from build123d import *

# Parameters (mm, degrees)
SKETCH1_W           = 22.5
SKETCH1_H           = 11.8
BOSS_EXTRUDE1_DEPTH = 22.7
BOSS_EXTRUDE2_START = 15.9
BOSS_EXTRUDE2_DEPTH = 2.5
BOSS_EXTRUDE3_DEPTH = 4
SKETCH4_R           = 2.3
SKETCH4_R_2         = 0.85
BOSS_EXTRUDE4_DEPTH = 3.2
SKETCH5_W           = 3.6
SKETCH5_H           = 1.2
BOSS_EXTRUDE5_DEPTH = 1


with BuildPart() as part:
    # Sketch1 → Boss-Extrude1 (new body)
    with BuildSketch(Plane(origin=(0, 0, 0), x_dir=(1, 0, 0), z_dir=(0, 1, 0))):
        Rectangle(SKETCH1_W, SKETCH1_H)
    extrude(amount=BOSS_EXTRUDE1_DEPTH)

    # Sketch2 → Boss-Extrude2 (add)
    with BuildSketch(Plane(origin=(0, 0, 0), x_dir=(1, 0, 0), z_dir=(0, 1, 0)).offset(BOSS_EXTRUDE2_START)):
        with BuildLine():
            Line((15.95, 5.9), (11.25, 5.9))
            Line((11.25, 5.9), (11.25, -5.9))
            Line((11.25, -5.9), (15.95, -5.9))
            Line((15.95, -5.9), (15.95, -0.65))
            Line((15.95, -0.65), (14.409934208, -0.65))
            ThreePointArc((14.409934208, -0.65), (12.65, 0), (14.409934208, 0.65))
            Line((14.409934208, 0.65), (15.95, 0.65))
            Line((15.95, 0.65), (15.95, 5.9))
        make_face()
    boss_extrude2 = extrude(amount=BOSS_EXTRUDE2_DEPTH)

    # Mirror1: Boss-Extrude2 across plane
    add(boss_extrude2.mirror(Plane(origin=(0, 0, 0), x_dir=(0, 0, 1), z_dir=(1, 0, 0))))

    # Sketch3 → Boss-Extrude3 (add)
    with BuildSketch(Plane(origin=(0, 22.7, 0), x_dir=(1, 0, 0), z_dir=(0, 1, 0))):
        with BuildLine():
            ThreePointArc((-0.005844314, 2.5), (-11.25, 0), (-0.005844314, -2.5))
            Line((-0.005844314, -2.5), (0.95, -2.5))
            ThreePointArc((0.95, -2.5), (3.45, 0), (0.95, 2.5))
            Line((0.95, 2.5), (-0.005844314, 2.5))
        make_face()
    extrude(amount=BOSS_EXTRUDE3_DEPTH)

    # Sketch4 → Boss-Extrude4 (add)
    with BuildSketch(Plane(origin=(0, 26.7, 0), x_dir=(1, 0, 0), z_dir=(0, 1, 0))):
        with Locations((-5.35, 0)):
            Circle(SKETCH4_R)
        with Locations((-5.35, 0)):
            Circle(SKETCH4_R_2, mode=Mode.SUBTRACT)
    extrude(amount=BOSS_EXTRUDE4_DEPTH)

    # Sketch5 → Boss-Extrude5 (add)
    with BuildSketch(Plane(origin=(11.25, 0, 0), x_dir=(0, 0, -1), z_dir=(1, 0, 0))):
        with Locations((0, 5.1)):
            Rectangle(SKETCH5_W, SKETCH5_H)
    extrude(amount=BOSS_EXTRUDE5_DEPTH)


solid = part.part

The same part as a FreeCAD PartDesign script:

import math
import FreeCAD as App
import Part
import Sketcher
from FreeCAD import Vector

doc = App.newDocument("Part")
body = doc.addObject("PartDesign::Body", "Body")

# Sketch on XZ plane
sketch1 = body.newObject("Sketcher::SketchObject", "Sketch")
sketch1.AttachmentSupport = (doc.getObject("XZ_Plane"), [""])
sketch1.MapMode = "FlatFace"
sketch1.addGeometry(Part.LineSegment(Vector(-11.25, -5.9, 0), Vector(-11.25, 5.9, 0)), False)
sketch1.addGeometry(Part.LineSegment(Vector(-11.25, 5.9, 0), Vector(11.25, 5.9, 0)), False)
sketch1.addGeometry(Part.LineSegment(Vector(11.25, 5.9, 0), Vector(11.25, -5.9, 0)), False)
sketch1.addGeometry(Part.LineSegment(Vector(11.25, -5.9, 0), Vector(-11.25, -5.9, 0)), False)
sketch1.addConstraint(Sketcher.Constraint("Coincident", 0, 2, 1, 1))
sketch1.addConstraint(Sketcher.Constraint("Coincident", 1, 2, 2, 1))
sketch1.addConstraint(Sketcher.Constraint("Coincident", 2, 2, 3, 1))
sketch1.addConstraint(Sketcher.Constraint("Coincident", 3, 2, 0, 1))
sketch1.addConstraint(Sketcher.Constraint("Vertical", 0))
sketch1.addConstraint(Sketcher.Constraint("Horizontal", 1))
sketch1.addConstraint(Sketcher.Constraint("Vertical", 2))
sketch1.addConstraint(Sketcher.Constraint("Horizontal", 3))
sketch1.addConstraint(Sketcher.Constraint("Symmetric", 0, 2, 2, 2, -1, 1))
sketch1.addConstraint(Sketcher.Constraint("DistanceX", 1, 1, 1, 2, 22.5))
sketch1.addConstraint(Sketcher.Constraint("DistanceY", 0, 1, 0, 2, 11.8))
pad1 = body.newObject("PartDesign::Pad", "Pad")
pad1.Profile = sketch1
pad1.Length = 22.7
pad1.Reversed = True

# Sketch on XZ plane
sketch2 = body.newObject("Sketcher::SketchObject", "Sketch001")
sketch2.AttachmentSupport = (doc.getObject("XZ_Plane"), [""])
sketch2.MapMode = "FlatFace"
sketch2.AttachmentOffset = App.Placement(Vector(0, 0, -15.9), App.Rotation())
sketch2.addGeometry(Part.LineSegment(Vector(15.95, -5.9, 0), Vector(11.25, -5.9, 0)), False)
sketch2.addGeometry(Part.LineSegment(Vector(11.25, -5.9, 0), Vector(11.25, 5.9, 0)), False)
sketch2.addGeometry(Part.LineSegment(Vector(11.25, 5.9, 0), Vector(15.95, 5.9, 0)), False)
sketch2.addGeometry(Part.LineSegment(Vector(15.95, 5.9, 0), Vector(15.95, 0.65, 0)), False)
sketch2.addGeometry(Part.LineSegment(Vector(15.95, 0.65, 0), Vector(14.409934, 0.65, 0)), False)
sketch2.addGeometry(Part.ArcOfCircle(Part.Circle(Vector(13.65, 0, 0), Vector(0, 0, 1), 1), math.radians(40.541602), math.radians(319.458398)), False)
sketch2.addGeometry(Part.LineSegment(Vector(14.409934, -0.65, 0), Vector(15.95, -0.65, 0)), False)
sketch2.addGeometry(Part.LineSegment(Vector(15.95, -0.65, 0), Vector(15.95, -5.9, 0)), False)
sketch2.addConstraint(Sketcher.Constraint("Coincident", 0, 2, 1, 1))
sketch2.addConstraint(Sketcher.Constraint("Coincident", 1, 2, 2, 1))
sketch2.addConstraint(Sketcher.Constraint("Coincident", 2, 2, 3, 1))
sketch2.addConstraint(Sketcher.Constraint("Coincident", 3, 2, 4, 1))
sketch2.addConstraint(Sketcher.Constraint("Coincident", 4, 2, 5, 1))
sketch2.addConstraint(Sketcher.Constraint("Coincident", 5, 2, 6, 1))
sketch2.addConstraint(Sketcher.Constraint("Coincident", 6, 2, 7, 1))
sketch2.addConstraint(Sketcher.Constraint("Coincident", 7, 2, 0, 1))
sketch2.addConstraint(Sketcher.Constraint("Horizontal", 0))
sketch2.addConstraint(Sketcher.Constraint("Vertical", 1))
sketch2.addConstraint(Sketcher.Constraint("Horizontal", 2))
sketch2.addConstraint(Sketcher.Constraint("Vertical", 3))
sketch2.addConstraint(Sketcher.Constraint("Horizontal", 4))
sketch2.addConstraint(Sketcher.Constraint("Horizontal", 6))
sketch2.addConstraint(Sketcher.Constraint("Vertical", 7))
sketch2.addConstraint(Sketcher.Constraint("Symmetric", 4, 2, 5, 2, -1))
sketch2.addConstraint(Sketcher.Constraint("Symmetric", 2, 2, 7, 2, -1))
sketch2.addConstraint(Sketcher.Constraint("Radius", 5, 1.0))
sketch2.addConstraint(Sketcher.Constraint("DistanceX", 0, 2, 0, 1, 4.7))
sketch2.addConstraint(Sketcher.Constraint("DistanceY", 1, 1, 1, 2, 11.8))
sketch2.addConstraint(Sketcher.Constraint("DistanceY", 3, 2, 3, 1, 5.25))
sketch2.addConstraint(Sketcher.Constraint("DistanceX", 0, 2, 5, 3, 2.4))
sketch2.addConstraint(Sketcher.Constraint("DistanceX", -1, 1, 5, 3, 13.65))
pad2 = body.newObject("PartDesign::Pad", "Pad001")
pad2.Profile = sketch2
pad2.Length = 2.5
pad2.Reversed = True
doc.recompute()

mirrored = body.newObject("PartDesign::Mirrored", "Mirrored")
mirrored.Originals = [pad2]
mirrored.MirrorPlane = (doc.getObject("YZ_Plane"), [""])
body.Tip = mirrored

# Sketch on XZ plane
sketch3 = body.newObject("Sketcher::SketchObject", "Sketch002")
sketch3.AttachmentSupport = (doc.getObject("XZ_Plane"), [""])
sketch3.MapMode = "FlatFace"
sketch3.AttachmentOffset = App.Placement(Vector(0, 0, -22.7), App.Rotation())
sketch3.addGeometry(Part.ArcOfCircle(Part.Circle(Vector(-5.35, 0, 0), Vector(0, 0, 1), 5.9), math.radians(25.070228), math.radians(334.929772)), False)
sketch3.addGeometry(Part.LineSegment(Vector(-0.005844, 2.5, 0), Vector(0.95, 2.5, 0)), False)
sketch3.addGeometry(Part.ArcOfCircle(Part.Circle(Vector(0.95, 0, 0), Vector(0, 0, 1), 2.5), math.radians(-90), math.radians(90)), False)
sketch3.addGeometry(Part.LineSegment(Vector(0.95, -2.5, 0), Vector(-0.005844, -2.5, 0)), False)
sketch3.addConstraint(Sketcher.Constraint("Coincident", 0, 1, 1, 1))
sketch3.addConstraint(Sketcher.Constraint("Tangent", 1, 2, 2, 2))
sketch3.addConstraint(Sketcher.Constraint("Tangent", 2, 1, 3, 1))
sketch3.addConstraint(Sketcher.Constraint("Coincident", 3, 2, 0, 2))
sketch3.addConstraint(Sketcher.Constraint("Horizontal", 1))
sketch3.addConstraint(Sketcher.Constraint("Horizontal", 3))
sketch3.addConstraint(Sketcher.Constraint("Symmetric", 0, 1, 3, 2, -1))
sketch3.addConstraint(Sketcher.Constraint("Radius", 0, 5.9))
sketch3.addConstraint(Sketcher.Constraint("Radius", 2, 2.5))
sketch3.addConstraint(Sketcher.Constraint("DistanceX", 0, 3, 2, 3, 6.3))
sketch3.addConstraint(Sketcher.Constraint("DistanceX", 0, 3, -1, 1, 5.35))
pad3 = body.newObject("PartDesign::Pad", "Pad002")
pad3.Profile = sketch3
pad3.Length = 4
pad3.Reversed = True

# Sketch on XZ plane
sketch4 = body.newObject("Sketcher::SketchObject", "Sketch003")
sketch4.AttachmentSupport = (doc.getObject("XZ_Plane"), [""])
sketch4.MapMode = "FlatFace"
sketch4.AttachmentOffset = App.Placement(Vector(0, 0, -26.7), App.Rotation())
sketch4.addGeometry(Part.Circle(Vector(-5.35, 0, 0), Vector(0, 0, 1), 2.3), False)
sketch4.addGeometry(Part.Circle(Vector(-5.35, 0, 0), Vector(0, 0, 1), 0.85), False)
sketch4.addConstraint(Sketcher.Constraint("Coincident", 1, 3, 0, 3))
sketch4.addConstraint(Sketcher.Constraint("PointOnObject", 0, 3, -1))
sketch4.addConstraint(Sketcher.Constraint("Diameter", 0, 4.6))
sketch4.addConstraint(Sketcher.Constraint("Diameter", 1, 1.7))
sketch4.addConstraint(Sketcher.Constraint("DistanceX", 0, 3, -1, 1, 5.35))
pad4 = body.newObject("PartDesign::Pad", "Pad003")
pad4.Profile = sketch4
pad4.Length = 3.2
pad4.Reversed = True

# Sketch on YZ plane
sketch5 = body.newObject("Sketcher::SketchObject", "Sketch004")
sketch5.AttachmentSupport = (doc.getObject("YZ_Plane"), [""])
sketch5.MapMode = "FlatFace"
sketch5.AttachmentOffset = App.Placement(Vector(0, 0, 11.25), App.Rotation())
sketch5.addGeometry(Part.LineSegment(Vector(5.7, 1.8, 0), Vector(4.5, 1.8, 0)), False)
sketch5.addGeometry(Part.LineSegment(Vector(4.5, 1.8, 0), Vector(4.5, -1.8, 0)), False)
sketch5.addGeometry(Part.LineSegment(Vector(4.5, -1.8, 0), Vector(5.7, -1.8, 0)), False)
sketch5.addGeometry(Part.LineSegment(Vector(5.7, -1.8, 0), Vector(5.7, 1.8, 0)), False)
sketch5.addConstraint(Sketcher.Constraint("Coincident", 0, 2, 1, 1))
sketch5.addConstraint(Sketcher.Constraint("Coincident", 1, 2, 2, 1))
sketch5.addConstraint(Sketcher.Constraint("Coincident", 2, 2, 3, 1))
sketch5.addConstraint(Sketcher.Constraint("Coincident", 3, 2, 0, 1))
sketch5.addConstraint(Sketcher.Constraint("Horizontal", 0))
sketch5.addConstraint(Sketcher.Constraint("Vertical", 1))
sketch5.addConstraint(Sketcher.Constraint("Horizontal", 2))
sketch5.addConstraint(Sketcher.Constraint("Vertical", 3))
sketch5.addConstraint(Sketcher.Constraint("DistanceX", 0, 2, 0, 1, 1.2))
sketch5.addConstraint(Sketcher.Constraint("DistanceY", 1, 2, 1, 1, 3.6))
sketch5.addConstraint(Sketcher.Constraint("DistanceX", -1, 1, 0, 2, 4.5))
sketch5.addConstraint(Sketcher.Constraint("DistanceY", -1, 1, 0, 2, 1.8))
pad5 = body.newObject("PartDesign::Pad", "Pad004")
pad5.Profile = sketch5
pad5.Length = 1

doc.recompute()
